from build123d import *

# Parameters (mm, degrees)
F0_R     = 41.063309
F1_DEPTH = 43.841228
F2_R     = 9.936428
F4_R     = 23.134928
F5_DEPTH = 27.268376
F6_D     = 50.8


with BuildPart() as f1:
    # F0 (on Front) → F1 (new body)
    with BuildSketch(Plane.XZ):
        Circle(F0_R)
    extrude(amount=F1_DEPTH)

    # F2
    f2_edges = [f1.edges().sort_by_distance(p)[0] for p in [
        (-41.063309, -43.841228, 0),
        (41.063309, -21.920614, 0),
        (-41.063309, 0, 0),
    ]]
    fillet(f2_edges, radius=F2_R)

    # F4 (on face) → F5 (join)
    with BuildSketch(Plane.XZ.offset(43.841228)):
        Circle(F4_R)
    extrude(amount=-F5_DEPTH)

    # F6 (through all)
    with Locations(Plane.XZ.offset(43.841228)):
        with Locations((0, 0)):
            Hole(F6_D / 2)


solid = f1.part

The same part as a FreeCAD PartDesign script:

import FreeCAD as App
import Part
import Sketcher
Q = App.Units.Quantity

doc = App.newDocument("Part")
body = doc.addObject("PartDesign::Body", "Body")

# Sketch on XZ plane
sketch1 = body.newObject("Sketcher::SketchObject", "Sketch")
sketch1.AttachmentSupport = (doc.getObject("XZ_Plane"), [""])
sketch1.MapMode = "FlatFace"
sketch1.addGeometry(Part.Circle(App.Vector(0, 0, 0), App.Vector(0, 0, 1), 41), False)
sketch1.addConstraint([
    Sketcher.Constraint("Coincident", 0, 3, -1, 1),
    Sketcher.Constraint("Diameter", 0, Q("82.126618 mm")),
])
pad1 = body.newObject("PartDesign::Pad", "Pad")
pad1.Profile = sketch1
pad1.Length = 43.841228
doc.recompute()

fillet = body.newObject("PartDesign::Fillet", "Fillet")
fillet.Base = (pad1, ["Edge1"])
fillet.UseAllEdges = True
fillet.Radius = 9.936428

# Sketch on XZ plane
sketch2 = body.newObject("Sketcher::SketchObject", "Sketch001")
sketch2.AttachmentSupport = (doc.getObject("XZ_Plane"), [""])
sketch2.MapMode = "FlatFace"
sketch2.AttachmentOffset = App.Placement(App.Vector(0, 0, 43.841228), App.Rotation())
sketch2.addGeometry(Part.Circle(App.Vector(0, 0, 0), App.Vector(0, 0, 1), 23), False)
sketch2.addConstraint([
    Sketcher.Constraint("Coincident", 0, 3, -1, 1),
    Sketcher.Constraint("Diameter", 0, Q("46.269856 mm")),
])
pad2 = body.newObject("PartDesign::Pad", "Pad001")
pad2.Profile = sketch2
pad2.Length = 27.268376
pad2.Reversed = True

# Sketch on XZ plane
sketch3 = body.newObject("Sketcher::SketchObject", "Sketch002")
sketch3.AttachmentSupport = (doc.getObject("XZ_Plane"), [""])
sketch3.MapMode = "FlatFace"
sketch3.AttachmentOffset = App.Placement(App.Vector(0, 0, 43.841228), App.Rotation())
sketch3.addGeometry(Part.Circle(App.Vector(0, 0, 0), App.Vector(0, 0, 1), 25), False)
sketch3.addConstraint([
    Sketcher.Constraint("Coincident", 0, 3, -1, 1),
    Sketcher.Constraint("Diameter", 0, Q("2 in")),
])
doc.recompute()
hole = body.newObject("PartDesign::Hole", "Hole")
hole.Profile = sketch3
hole.ThreadType = "None"
hole.Diameter = Q("2 in")
hole.DepthType = "ThroughAll"

doc.recompute()
